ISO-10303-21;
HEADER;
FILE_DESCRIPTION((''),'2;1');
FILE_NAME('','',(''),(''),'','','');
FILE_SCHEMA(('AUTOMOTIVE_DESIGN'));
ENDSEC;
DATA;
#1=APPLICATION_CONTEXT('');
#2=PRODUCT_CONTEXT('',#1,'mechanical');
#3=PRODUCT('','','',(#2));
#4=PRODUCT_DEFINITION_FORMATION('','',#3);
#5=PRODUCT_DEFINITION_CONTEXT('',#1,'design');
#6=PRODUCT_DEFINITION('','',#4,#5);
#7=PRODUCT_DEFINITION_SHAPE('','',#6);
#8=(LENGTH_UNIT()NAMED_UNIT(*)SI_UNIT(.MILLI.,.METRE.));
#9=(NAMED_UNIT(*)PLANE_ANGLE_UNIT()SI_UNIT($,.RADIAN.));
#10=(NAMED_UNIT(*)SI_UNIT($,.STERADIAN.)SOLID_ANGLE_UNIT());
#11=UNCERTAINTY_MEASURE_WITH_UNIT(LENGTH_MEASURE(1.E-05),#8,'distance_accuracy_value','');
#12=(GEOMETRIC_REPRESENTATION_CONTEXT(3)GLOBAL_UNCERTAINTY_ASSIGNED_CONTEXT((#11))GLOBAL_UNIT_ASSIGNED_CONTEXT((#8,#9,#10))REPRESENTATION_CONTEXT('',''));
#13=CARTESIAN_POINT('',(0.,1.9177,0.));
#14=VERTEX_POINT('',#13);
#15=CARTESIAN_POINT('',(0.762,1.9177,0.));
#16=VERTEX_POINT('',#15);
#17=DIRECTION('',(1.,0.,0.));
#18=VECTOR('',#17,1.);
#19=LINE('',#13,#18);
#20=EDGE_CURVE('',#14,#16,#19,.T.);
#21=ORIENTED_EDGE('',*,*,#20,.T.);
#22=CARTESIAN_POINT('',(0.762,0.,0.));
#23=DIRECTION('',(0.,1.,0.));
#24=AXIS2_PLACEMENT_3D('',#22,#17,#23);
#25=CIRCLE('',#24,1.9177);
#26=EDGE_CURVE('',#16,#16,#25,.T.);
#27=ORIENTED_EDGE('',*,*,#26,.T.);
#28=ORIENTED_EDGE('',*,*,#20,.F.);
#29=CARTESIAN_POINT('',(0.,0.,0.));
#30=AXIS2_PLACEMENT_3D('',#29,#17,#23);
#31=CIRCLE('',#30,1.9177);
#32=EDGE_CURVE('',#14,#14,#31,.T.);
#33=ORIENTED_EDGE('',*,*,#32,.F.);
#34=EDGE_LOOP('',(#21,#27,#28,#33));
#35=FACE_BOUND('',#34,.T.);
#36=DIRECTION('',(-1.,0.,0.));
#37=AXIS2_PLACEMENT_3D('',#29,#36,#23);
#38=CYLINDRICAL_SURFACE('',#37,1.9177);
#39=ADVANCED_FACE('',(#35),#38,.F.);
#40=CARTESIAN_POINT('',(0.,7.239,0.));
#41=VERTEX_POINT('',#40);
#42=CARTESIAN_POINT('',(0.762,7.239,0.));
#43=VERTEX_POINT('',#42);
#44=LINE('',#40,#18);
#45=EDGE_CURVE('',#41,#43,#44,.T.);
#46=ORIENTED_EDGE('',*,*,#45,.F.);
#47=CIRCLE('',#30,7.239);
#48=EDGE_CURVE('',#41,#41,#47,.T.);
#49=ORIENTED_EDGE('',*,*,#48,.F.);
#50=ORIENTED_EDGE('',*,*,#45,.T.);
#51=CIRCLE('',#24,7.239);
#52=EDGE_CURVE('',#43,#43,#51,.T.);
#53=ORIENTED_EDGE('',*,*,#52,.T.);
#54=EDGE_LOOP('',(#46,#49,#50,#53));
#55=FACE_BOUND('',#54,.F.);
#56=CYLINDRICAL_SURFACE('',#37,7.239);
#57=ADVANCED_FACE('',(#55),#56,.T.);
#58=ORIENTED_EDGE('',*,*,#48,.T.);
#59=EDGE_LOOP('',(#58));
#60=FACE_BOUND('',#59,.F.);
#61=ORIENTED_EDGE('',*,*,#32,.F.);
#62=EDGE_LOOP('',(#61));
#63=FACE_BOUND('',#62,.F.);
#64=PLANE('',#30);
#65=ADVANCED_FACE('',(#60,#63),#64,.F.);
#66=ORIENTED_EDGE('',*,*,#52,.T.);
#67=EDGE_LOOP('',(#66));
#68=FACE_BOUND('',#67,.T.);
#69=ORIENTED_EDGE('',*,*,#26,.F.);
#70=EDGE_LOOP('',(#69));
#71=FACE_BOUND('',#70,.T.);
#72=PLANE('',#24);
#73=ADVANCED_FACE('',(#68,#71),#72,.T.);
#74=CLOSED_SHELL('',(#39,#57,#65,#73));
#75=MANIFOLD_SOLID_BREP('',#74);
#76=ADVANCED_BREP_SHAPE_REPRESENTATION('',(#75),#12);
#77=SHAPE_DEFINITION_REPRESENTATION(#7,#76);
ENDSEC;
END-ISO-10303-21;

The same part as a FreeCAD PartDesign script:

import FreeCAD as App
import Part
import Sketcher
Q = App.Units.Quantity

doc = App.newDocument("Part")
body = doc.addObject("PartDesign::Body", "Body")

# Sketch on YZ plane
sketch1 = body.newObject("Sketcher::SketchObject", "Sketch")
sketch1.AttachmentSupport = (doc.getObject("YZ_Plane"), [""])
sketch1.MapMode = "FlatFace"
sketch1.addGeometry(Part.Circle(App.Vector(0, 0, 0), App.Vector(0, 0, 1), 7.2), False)
sketch1.addGeometry(Part.Circle(App.Vector(0, 0, 0), App.Vector(0, 0, 1), 1.9), False)
sketch1.addConstraint(Sketcher.Constraint("Coincident", 0, 3, -1, 1))
sketch1.addConstraint(Sketcher.Constraint("Coincident", 1, 3, -1, 1))
sketch1.addConstraint(Sketcher.Constraint("Diameter", 0, Q("0.57 in")))
sketch1.addConstraint(Sketcher.Constraint("Diameter", 1, Q("0.151 in")))
pad1 = body.newObject("PartDesign::Pad", "Pad")
pad1.Profile = sketch1
pad1.Length = Q("0.03 in")

doc.recompute()
